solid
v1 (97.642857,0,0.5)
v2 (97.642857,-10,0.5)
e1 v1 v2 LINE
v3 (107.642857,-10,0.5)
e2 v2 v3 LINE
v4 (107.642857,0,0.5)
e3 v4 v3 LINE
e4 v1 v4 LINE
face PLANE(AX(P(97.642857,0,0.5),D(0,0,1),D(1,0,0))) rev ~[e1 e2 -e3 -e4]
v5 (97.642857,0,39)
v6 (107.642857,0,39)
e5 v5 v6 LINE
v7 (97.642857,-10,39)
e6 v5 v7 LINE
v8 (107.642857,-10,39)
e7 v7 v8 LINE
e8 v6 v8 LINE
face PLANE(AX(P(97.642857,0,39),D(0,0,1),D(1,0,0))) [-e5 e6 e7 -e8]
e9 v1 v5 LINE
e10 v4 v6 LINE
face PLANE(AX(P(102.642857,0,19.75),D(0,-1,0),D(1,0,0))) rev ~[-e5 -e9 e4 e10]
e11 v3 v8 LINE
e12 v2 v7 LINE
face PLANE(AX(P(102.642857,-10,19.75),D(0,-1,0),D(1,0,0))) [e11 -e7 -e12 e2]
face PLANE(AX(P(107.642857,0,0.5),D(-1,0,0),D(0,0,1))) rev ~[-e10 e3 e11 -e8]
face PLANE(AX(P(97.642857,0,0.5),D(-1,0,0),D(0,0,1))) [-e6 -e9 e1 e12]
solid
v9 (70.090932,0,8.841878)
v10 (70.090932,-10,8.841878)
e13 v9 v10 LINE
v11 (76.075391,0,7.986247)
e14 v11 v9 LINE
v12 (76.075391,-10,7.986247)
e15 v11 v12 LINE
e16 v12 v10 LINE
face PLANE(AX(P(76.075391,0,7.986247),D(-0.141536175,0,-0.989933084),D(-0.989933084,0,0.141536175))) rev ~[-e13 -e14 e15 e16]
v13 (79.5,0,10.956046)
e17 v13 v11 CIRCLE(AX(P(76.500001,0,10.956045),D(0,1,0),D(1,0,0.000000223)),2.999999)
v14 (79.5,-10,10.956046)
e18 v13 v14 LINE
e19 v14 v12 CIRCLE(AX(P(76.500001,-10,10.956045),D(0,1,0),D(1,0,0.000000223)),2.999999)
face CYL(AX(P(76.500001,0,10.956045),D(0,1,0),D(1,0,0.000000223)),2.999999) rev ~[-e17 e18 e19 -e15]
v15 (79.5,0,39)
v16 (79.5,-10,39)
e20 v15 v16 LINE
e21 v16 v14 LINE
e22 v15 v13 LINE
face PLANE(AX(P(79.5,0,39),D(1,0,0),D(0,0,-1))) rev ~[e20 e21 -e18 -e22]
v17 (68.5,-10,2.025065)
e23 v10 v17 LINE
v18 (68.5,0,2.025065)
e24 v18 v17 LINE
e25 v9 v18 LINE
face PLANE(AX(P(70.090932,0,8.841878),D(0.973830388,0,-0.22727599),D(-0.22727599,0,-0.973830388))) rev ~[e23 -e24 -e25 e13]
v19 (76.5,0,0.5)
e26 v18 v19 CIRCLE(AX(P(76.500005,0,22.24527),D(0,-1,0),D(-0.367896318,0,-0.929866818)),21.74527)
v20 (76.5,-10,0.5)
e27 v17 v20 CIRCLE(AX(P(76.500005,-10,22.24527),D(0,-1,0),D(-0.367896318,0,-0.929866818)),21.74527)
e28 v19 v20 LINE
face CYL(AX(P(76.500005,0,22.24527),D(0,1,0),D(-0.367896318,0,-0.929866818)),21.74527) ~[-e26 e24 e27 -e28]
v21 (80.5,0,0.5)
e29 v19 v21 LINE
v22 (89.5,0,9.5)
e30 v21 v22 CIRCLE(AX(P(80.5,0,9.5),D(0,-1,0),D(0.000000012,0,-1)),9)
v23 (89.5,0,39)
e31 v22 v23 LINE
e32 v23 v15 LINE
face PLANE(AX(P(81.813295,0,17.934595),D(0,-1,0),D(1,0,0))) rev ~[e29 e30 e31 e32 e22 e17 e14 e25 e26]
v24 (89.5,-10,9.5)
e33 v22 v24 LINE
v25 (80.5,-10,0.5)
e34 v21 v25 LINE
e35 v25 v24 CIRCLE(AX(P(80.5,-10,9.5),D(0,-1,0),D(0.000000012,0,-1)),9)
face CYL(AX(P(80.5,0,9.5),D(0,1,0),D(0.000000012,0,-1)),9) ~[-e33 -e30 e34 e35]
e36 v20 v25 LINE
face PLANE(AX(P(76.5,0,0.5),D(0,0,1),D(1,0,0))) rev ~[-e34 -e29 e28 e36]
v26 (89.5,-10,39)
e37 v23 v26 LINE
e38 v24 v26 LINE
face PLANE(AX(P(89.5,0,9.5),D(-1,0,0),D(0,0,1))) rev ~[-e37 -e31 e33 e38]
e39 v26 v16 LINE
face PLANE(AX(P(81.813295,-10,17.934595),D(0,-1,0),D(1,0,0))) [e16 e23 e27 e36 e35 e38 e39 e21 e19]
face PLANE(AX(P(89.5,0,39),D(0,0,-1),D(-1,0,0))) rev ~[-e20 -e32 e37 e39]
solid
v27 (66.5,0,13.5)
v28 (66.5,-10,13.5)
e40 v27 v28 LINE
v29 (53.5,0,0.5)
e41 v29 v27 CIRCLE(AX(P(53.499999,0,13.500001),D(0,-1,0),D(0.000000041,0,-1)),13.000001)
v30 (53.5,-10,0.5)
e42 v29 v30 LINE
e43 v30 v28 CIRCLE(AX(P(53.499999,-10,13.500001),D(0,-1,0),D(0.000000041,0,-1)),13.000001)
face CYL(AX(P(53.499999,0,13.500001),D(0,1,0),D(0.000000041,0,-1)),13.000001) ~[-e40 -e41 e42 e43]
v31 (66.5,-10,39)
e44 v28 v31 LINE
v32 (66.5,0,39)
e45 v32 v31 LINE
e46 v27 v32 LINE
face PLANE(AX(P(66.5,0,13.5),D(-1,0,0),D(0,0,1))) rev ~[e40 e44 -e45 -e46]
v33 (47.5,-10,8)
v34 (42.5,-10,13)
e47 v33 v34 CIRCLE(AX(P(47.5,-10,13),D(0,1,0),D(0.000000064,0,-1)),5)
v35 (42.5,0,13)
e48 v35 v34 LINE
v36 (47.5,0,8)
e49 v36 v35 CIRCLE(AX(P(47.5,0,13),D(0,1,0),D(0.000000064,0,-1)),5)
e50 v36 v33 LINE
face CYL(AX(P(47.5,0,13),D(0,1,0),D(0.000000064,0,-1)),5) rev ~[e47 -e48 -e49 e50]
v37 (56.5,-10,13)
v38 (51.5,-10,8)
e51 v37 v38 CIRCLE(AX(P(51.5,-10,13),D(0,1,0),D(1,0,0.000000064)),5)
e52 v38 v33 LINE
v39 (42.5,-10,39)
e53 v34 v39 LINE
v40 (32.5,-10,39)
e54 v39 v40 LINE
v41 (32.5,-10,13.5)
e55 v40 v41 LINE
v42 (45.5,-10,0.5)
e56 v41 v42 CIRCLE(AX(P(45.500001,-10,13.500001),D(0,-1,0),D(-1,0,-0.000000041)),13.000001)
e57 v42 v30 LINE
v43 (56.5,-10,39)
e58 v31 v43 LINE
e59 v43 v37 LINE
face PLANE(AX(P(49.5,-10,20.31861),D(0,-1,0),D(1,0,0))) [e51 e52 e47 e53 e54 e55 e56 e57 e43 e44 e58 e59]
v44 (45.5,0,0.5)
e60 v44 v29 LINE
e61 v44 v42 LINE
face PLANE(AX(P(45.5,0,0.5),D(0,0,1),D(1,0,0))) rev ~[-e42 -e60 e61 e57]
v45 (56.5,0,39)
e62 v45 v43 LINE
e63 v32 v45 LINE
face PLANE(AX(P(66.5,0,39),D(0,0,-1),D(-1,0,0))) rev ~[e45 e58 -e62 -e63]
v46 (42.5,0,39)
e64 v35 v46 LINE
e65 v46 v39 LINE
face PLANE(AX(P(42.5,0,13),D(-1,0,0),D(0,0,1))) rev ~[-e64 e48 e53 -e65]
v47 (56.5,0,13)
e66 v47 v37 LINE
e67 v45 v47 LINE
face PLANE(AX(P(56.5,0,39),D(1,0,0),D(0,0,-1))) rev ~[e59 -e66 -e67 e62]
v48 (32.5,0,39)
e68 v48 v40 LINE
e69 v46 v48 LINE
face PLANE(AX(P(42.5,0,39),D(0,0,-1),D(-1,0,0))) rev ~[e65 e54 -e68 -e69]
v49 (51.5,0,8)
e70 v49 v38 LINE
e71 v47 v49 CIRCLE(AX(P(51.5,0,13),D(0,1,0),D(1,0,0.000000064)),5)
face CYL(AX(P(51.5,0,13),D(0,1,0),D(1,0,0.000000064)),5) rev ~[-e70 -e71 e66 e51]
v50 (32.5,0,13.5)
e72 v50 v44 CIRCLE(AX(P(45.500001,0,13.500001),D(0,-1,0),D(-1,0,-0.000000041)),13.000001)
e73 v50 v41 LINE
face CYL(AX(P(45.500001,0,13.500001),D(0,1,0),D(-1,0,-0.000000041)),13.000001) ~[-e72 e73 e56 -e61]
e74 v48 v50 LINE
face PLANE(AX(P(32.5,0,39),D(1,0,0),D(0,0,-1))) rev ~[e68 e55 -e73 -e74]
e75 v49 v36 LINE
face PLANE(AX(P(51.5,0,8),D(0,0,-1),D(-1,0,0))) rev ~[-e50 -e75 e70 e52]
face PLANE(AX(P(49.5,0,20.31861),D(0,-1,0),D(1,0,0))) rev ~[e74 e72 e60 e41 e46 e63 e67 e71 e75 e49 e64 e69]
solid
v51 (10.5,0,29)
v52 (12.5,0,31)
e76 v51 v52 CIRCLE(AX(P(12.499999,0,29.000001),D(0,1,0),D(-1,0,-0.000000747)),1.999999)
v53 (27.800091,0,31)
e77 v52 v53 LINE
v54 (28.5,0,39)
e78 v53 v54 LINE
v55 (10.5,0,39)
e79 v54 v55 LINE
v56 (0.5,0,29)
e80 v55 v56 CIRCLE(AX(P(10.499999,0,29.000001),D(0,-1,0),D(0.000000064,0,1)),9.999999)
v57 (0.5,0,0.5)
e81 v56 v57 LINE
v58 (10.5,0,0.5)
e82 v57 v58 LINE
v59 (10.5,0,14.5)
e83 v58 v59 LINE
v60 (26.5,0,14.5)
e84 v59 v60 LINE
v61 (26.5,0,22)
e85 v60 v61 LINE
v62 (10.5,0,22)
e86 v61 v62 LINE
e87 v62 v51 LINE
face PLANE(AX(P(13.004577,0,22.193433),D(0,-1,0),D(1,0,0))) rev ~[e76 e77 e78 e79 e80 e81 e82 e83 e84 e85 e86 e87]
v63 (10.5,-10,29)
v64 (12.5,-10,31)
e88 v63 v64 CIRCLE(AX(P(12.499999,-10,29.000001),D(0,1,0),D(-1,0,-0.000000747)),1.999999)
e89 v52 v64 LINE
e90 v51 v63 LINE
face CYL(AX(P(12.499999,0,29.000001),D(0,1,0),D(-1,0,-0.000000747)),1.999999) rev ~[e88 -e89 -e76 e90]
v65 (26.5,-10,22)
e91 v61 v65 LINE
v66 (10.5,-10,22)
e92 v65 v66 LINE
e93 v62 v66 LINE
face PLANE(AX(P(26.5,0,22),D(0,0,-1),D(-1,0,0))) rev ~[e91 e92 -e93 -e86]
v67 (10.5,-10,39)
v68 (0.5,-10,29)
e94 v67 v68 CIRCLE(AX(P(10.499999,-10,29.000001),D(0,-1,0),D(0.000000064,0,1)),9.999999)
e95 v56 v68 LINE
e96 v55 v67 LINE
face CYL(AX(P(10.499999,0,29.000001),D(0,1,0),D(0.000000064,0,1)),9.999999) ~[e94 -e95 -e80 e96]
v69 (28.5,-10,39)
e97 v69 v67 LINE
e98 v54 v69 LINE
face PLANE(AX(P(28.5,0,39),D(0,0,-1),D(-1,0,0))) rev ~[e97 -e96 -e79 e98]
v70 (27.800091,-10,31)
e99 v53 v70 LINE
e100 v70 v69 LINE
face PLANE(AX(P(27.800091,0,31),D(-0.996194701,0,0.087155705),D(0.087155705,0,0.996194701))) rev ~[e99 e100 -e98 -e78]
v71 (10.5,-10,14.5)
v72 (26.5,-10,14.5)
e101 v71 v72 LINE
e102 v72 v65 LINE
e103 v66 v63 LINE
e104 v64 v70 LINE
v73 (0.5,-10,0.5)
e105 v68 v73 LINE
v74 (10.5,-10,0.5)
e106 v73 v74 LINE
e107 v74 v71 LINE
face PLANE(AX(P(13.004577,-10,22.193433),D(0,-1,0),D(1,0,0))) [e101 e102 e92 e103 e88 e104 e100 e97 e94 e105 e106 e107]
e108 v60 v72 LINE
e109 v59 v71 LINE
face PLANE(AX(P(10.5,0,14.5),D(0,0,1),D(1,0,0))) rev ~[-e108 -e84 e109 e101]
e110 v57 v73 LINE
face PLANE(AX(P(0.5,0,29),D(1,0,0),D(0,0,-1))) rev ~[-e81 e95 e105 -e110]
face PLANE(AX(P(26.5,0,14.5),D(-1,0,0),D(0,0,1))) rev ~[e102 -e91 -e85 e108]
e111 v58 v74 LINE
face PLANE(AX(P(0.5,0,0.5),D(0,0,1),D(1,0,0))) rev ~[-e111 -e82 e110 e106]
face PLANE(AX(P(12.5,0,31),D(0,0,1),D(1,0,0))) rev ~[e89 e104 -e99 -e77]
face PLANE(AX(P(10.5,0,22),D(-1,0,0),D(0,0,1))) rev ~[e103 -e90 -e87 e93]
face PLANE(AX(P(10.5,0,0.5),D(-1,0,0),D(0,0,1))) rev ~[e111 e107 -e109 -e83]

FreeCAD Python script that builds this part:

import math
import FreeCAD as App
import Part
import Sketcher

V = App.Vector
Q = App.Units.Quantity

doc = App.newDocument("Part")
params = doc.addObject("Spreadsheet::Sheet", "Params")
for row, (alias, value) in enumerate([
    ("sketch1_radius", "9.999999 mm"),
    ("sketch1_radius2", "1.999999 mm"),
    ("sketch1_radius3", "5 mm"),
    ("sketch1_radius4", "13.000001 mm"),
    ("sketch1_radius5", "13.000001 mm"),
    ("pad1_length", "10 mm"),
], start=1):
    params.set(f"A{row}", alias)
    params.set(f"B{row}", "=" + value)
    params.setAlias(f"B{row}", alias)

body = doc.addObject("PartDesign::Body", "Body")
body.AllowCompound = True

# Sketch on XZ plane
sketch1 = body.newObject("Sketcher::SketchObject", "Sketch")
sketch1.AttachmentSupport = (doc.getObject("XZ_Plane"), [""])
sketch1.MapMode = "FlatFace"
sketch1.addGeometry([
    Part.LineSegment(V(27.800091, 31, 0), V(28.5, 39, 0)),  # 0
    Part.LineSegment(V(28.5, 39, 0), V(10.5, 39, 0)),  # 1
    Part.ArcOfCircle(Part.Circle(V(10.499999, 29.000001, 0), V(0, 0, 1), 9.999999), math.radians(89.999996), math.radians(180.000004)),  # 2
    Part.LineSegment(V(0.5, 29, 0), V(0.5, 0.5, 0)),  # 3
    Part.LineSegment(V(0.5, 0.5, 0), V(10.5, 0.5, 0)),  # 4
    Part.LineSegment(V(10.5, 0.5, 0), V(10.5, 14.5, 0)),  # 5
    Part.LineSegment(V(10.5, 14.5, 0), V(26.5, 14.5, 0)),  # 6
    Part.LineSegment(V(26.5, 14.5, 0), V(26.5, 22, 0)),  # 7
    Part.LineSegment(V(26.5, 22, 0), V(10.5, 22, 0)),  # 8
    Part.LineSegment(V(10.5, 22, 0), V(10.5, 29, 0)),  # 9
    Part.ArcOfCircle(Part.Circle(V(12.499999, 29.000001, 0), V(0, 0, 1), 1.999999), math.radians(89.999957), math.radians(180.000043)),  # 10
    Part.LineSegment(V(12.5, 31, 0), V(27.800091, 31, 0)),  # 11
    Part.LineSegment(V(51.5, 8, 0), V(47.5, 8, 0)),  # 12
    Part.ArcOfCircle(Part.Circle(V(47.5, 13, 0), V(0, 0, 1), 5), math.radians(179.999996), math.radians(270.000004)),  # 13
    Part.LineSegment(V(42.5, 13, 0), V(42.5, 39, 0)),  # 14
    Part.LineSegment(V(42.5, 39, 0), V(32.5, 39, 0)),  # 15
    Part.LineSegment(V(32.5, 39, 0), V(32.5, 13.5, 0)),  # 16
    Part.ArcOfCircle(Part.Circle(V(45.500001, 13.500001, 0), V(0, 0, 1), 13.000001), math.radians(-179.999998), math.radians(-90.000002)),  # 17
    Part.LineSegment(V(45.5, 0.5, 0), V(53.5, 0.5, 0)),  # 18
    Part.ArcOfCircle(Part.Circle(V(53.499999, 13.500001, 0), V(0, 0, 1), 13.000001), math.radians(-89.999998), math.radians(-0.000002)),  # 19
    Part.LineSegment(V(66.5, 13.5, 0), V(66.5, 39, 0)),  # 20
    Part.LineSegment(V(66.5, 39, 0), V(56.5, 39, 0)),  # 21
    Part.LineSegment(V(56.5, 39, 0), V(56.5, 13, 0)),  # 22
    Part.ArcOfCircle(Part.Circle(V(51.5, 13, 0), V(0, 0, 1), 5), math.radians(-90.000004), math.radians(0.000004)),  # 23
    Part.LineSegment(V(89.5, 39, 0), V(79.5, 39, 0)),  # 24
    Part.LineSegment(V(79.5, 39, 0), V(79.5, 10.956046, 0)),  # 25
    Part.ArcOfCircle(Part.Circle(V(76.500001, 10.956045, 0), V(0, 0, 1), 2.999999), math.radians(-98.136773), math.radians(0.000013)),  # 26
    Part.LineSegment(V(76.075391, 7.986247, 0), V(70.090932, 8.841878, 0)),  # 27
    Part.LineSegment(V(70.090932, 8.841878, 0), V(68.5, 2.025065, 0)),  # 28
    Part.ArcOfCircle(Part.Circle(V(76.500005, 22.24527, 0), V(0, 0, 1), 21.74527), math.radians(-111.585936), math.radians(-90.000013)),  # 29
    Part.LineSegment(V(76.5, 0.5, 0), V(80.5, 0.5, 0)),  # 30
    Part.ArcOfCircle(Part.Circle(V(80.5, 9.5, 0), V(0, 0, 1), 9), math.radians(-89.999999), math.radians(-0.000001)),  # 31
    Part.LineSegment(V(89.5, 9.5, 0), V(89.5, 39, 0)),  # 32
    Part.LineSegment(V(97.642857, 39, 0), V(97.642857, 0.5, 0)),  # 33
    Part.LineSegment(V(97.642857, 0.5, 0), V(107.642857, 0.5, 0)),  # 34
    Part.LineSegment(V(107.642857, 0.5, 0), V(107.642857, 39, 0)),  # 35
    Part.LineSegment(V(107.642857, 39, 0), V(97.642857, 39, 0)),  # 36
], False)
sketch1.addConstraint([
    Sketcher.Constraint("Coincident", 0, 2, 1, 1),
    Sketcher.Constraint("Coincident", 1, 2, 2, 1),
    Sketcher.Constraint("Coincident", 2, 2, 3, 1),
    Sketcher.Constraint("Coincident", 3, 2, 4, 1),
    Sketcher.Constraint("Coincident", 4, 2, 5, 1),
    Sketcher.Constraint("Coincident", 5, 2, 6, 1),
    Sketcher.Constraint("Coincident", 6, 2, 7, 1),
    Sketcher.Constraint("Coincident", 7, 2, 8, 1),
    Sketcher.Constraint("Coincident", 8, 2, 9, 1),
    Sketcher.Constraint("Coincident", 9, 2, 10, 2),
    Sketcher.Constraint("Coincident", 10, 1, 11, 1),
    Sketcher.Constraint("Coincident", 11, 2, 0, 1),
    Sketcher.Constraint("Coincident", 12, 2, 13, 2),
    Sketcher.Constraint("Coincident", 13, 1, 14, 1),
    Sketcher.Constraint("Coincident", 14, 2, 15, 1),
    Sketcher.Constraint("Coincident", 15, 2, 16, 1),
    Sketcher.Constraint("Coincident", 16, 2, 17, 1),
    Sketcher.Constraint("Coincident", 17, 2, 18, 1),
    Sketcher.Constraint("Coincident", 18, 2, 19, 1),
    Sketcher.Constraint("Coincident", 19, 2, 20, 1),
    Sketcher.Constraint("Coincident", 20, 2, 21, 1),
    Sketcher.Constraint("Coincident", 21, 2, 22, 1),
    Sketcher.Constraint("Coincident", 22, 2, 23, 2),
    Sketcher.Constraint("Coincident", 23, 1, 12, 1),
    Sketcher.Constraint("Coincident", 24, 2, 25, 1),
    Sketcher.Constraint("Coincident", 25, 2, 26, 2),
    Sketcher.Constraint("Coincident", 26, 1, 27, 1),
    Sketcher.Constraint("Coincident", 27, 2, 28, 1),
    Sketcher.Constraint("Coincident", 28, 2, 29, 1),
    Sketcher.Constraint("Coincident", 29, 2, 30, 1),
    Sketcher.Constraint("Coincident", 30, 2, 31, 1),
    Sketcher.Constraint("Coincident", 31, 2, 32, 1),
    Sketcher.Constraint("Coincident", 32, 2, 24, 1),
    Sketcher.Constraint("Coincident", 33, 2, 34, 1),
    Sketcher.Constraint("Coincident", 34, 2, 35, 1),
    Sketcher.Constraint("Coincident", 35, 2, 36, 1),
    Sketcher.Constraint("Coincident", 36, 2, 33, 1),
    Sketcher.Constraint("Horizontal", 1),
    Sketcher.Constraint("Vertical", 3),
    Sketcher.Constraint("Horizontal", 4),
    Sketcher.Constraint("Vertical", 5),
    Sketcher.Constraint("Horizontal", 6),
    Sketcher.Constraint("Vertical", 7),
    Sketcher.Constraint("Horizontal", 8),
    Sketcher.Constraint("Vertical", 9),
    Sketcher.Constraint("Horizontal", 11),
    Sketcher.Constraint("Horizontal", 12),
    Sketcher.Constraint("Vertical", 14),
    Sketcher.Constraint("Horizontal", 15),
    Sketcher.Constraint("Vertical", 16),
    Sketcher.Constraint("Horizontal", 18),
    Sketcher.Constraint("Vertical", 20),
    Sketcher.Constraint("Horizontal", 21),
    Sketcher.Constraint("Vertical", 22),
    Sketcher.Constraint("Horizontal", 24),
    Sketcher.Constraint("Vertical", 25),
    Sketcher.Constraint("Horizontal", 30),
    Sketcher.Constraint("Vertical", 32),
    Sketcher.Constraint("Vertical", 33),
    Sketcher.Constraint("Horizontal", 34),
    Sketcher.Constraint("Vertical", 35),
    Sketcher.Constraint("Horizontal", 36),
    Sketcher.Constraint("Coincident", 9, 2, 2, 3),
    Sketcher.Constraint("Radius", 2, Q("9.999999 mm")),
    Sketcher.Constraint("Radius", 10, Q("1.999999 mm")),
    Sketcher.Constraint("Radius", 13, Q("5 mm")),
    Sketcher.Constraint("Radius", 17, Q("13.000001 mm")),
    Sketcher.Constraint("Radius", 19, Q("13.000001 mm")),
    Sketcher.Constraint("Radius", 23, Q("5 mm")),
    Sketcher.Constraint("Radius", 26, Q("2.999999 mm")),
    Sketcher.Constraint("Radius", 31, Q("9 mm")),
    Sketcher.Constraint("DistanceX", 1, 2, 1, 1, Q("18 mm")),
    Sketcher.Constraint("DistanceX", 4, 1, 4, 2, Q("10 mm")),
    Sketcher.Constraint("DistanceX", 6, 1, 6, 2, Q("16 mm")),
    Sketcher.Constraint("DistanceX", 12, 2, 12, 1, Q("4 mm")),
    Sketcher.Constraint("DistanceX", 15, 2, 15, 1, Q("10 mm")),
    Sketcher.Constraint("DistanceX", 18, 1, 18, 2, Q("8 mm")),
    Sketcher.Constraint("DistanceX", 21, 2, 21, 1, Q("10 mm")),
    Sketcher.Constraint("DistanceX", 24, 2, 24, 1, Q("10 mm")),
    Sketcher.Constraint("DistanceX", 30, 1, 30, 2, Q("4 mm")),
    Sketcher.Constraint("DistanceX", 34, 1, 34, 2, Q("10 mm")),
    Sketcher.Constraint("DistanceY", 5, 1, 5, 2, Q("14 mm")),
    Sketcher.Constraint("DistanceY", 9, 1, 9, 2, Q("7 mm")),
    Sketcher.Constraint("DistanceY", 14, 1, 14, 2, Q("26 mm")),
    Sketcher.Constraint("DistanceY", 22, 2, 22, 1, Q("26 mm")),
    Sketcher.Constraint("Distance", 28, Q("7 mm")),
    Sketcher.Constraint("DistanceY", 3, 2, 3, 1, Q("28.5 mm")),
    Sketcher.Constraint("DistanceY", 7, 1, 7, 2, Q("7.5 mm")),
    Sketcher.Constraint("DistanceY", 16, 2, 16, 1, Q("25.5 mm")),
    Sketcher.Constraint("DistanceY", 20, 1, 20, 2, Q("25.5 mm")),
    Sketcher.Constraint("DistanceY", 32, 1, 32, 2, Q("29.5 mm")),
    Sketcher.Constraint("DistanceY", 33, 2, 33, 1, Q("38.5 mm")),
    Sketcher.Constraint("DistanceY", -1, 1, 2, 3, Q("29.000001 mm")),
    Sketcher.Constraint("DistanceY", -1, 1, 10, 3, Q("29.000001 mm")),
    Sketcher.Constraint("DistanceY", -1, 1, 13, 3, Q("13 mm")),
    Sketcher.Constraint("DistanceY", -1, 1, 13, 1, Q("13 mm")),
    Sketcher.Constraint("DistanceY", -1, 1, 20, 2, Q("39 mm")),
    Sketcher.Constraint("DistanceY", -1, 1, 24, 2, Q("39 mm")),
    Sketcher.Constraint("DistanceY", -1, 1, 35, 2, Q("39 mm")),
    Sketcher.Constraint("DistanceX", 10, 3, 13, 3, Q("35.000001 mm")),
    Sketcher.Constraint("DistanceX", 13, 3, 19, 3, Q("6 mm")),
    Sketcher.Constraint("DistanceX", 19, 3, 26, 3, Q("23.000001 mm")),
    Sketcher.Constraint("DistanceY", 31, 3, 19, 3, Q("4 mm")),
    Sketcher.Constraint("DistanceX", 10, 3, 0, 2, Q("16.000001 mm")),
    Sketcher.Constraint("DistanceY", 3, 2, 17, 3, Q("13.000001 mm")),
    Sketcher.Constraint("DistanceX", 9, 2, 10, 1, Q("2 mm")),
    Sketcher.Constraint("DistanceX", 17, 3, 12, 2, Q("1.999999 mm")),
    Sketcher.Constraint("DistanceX", 17, 2, 12, 2, Q("2 mm")),
    Sketcher.Constraint("DistanceX", 19, 2, 28, 2, Q("2 mm")),
    Sketcher.Constraint("DistanceX", 28, 2, 29, 2, Q("8 mm")),
    Sketcher.Constraint("DistanceX", -1, 1, 2, 3, Q("10.499999 mm")),
    Sketcher.Constraint("Radius", 29, Q("21.74527 mm")),
    Sketcher.Constraint("DistanceX", 11, 1, 11, 2, Q("15.300091 mm")),
    Sketcher.Constraint("DistanceY", 26, 1, 26, 3, Q("2.969798 mm")),
    Sketcher.Constraint("DistanceY", 26, 1, 25, 2, Q("2.969799 mm")),
    Sketcher.Constraint("DistanceY", 25, 2, 25, 1, Q("28.043954 mm")),
    Sketcher.Constraint("DistanceX", -1, 1, 27, 2, Q("70.090932 mm")),
    Sketcher.Constraint("DistanceY", 26, 1, 27, 2, Q("0.855631 mm")),
    Sketcher.Constraint("DistanceX", -1, 1, 33, 2, Q("97.642857 mm")),
])
sketch1.setExpression("Constraints[63]", "Params.sketch1_radius")
sketch1.setExpression("Constraints[64]", "Params.sketch1_radius2")
sketch1.setExpression("Constraints[65]", "Params.sketch1_radius3")
sketch1.setExpression("Constraints[66]", "Params.sketch1_radius4")
sketch1.setExpression("Constraints[67]", "Params.sketch1_radius5")
pad1 = body.newObject("PartDesign::Pad", "Pad")
pad1.Profile = sketch1
pad1.setExpression("Length", "Params.pad1_length")

doc.recompute()
